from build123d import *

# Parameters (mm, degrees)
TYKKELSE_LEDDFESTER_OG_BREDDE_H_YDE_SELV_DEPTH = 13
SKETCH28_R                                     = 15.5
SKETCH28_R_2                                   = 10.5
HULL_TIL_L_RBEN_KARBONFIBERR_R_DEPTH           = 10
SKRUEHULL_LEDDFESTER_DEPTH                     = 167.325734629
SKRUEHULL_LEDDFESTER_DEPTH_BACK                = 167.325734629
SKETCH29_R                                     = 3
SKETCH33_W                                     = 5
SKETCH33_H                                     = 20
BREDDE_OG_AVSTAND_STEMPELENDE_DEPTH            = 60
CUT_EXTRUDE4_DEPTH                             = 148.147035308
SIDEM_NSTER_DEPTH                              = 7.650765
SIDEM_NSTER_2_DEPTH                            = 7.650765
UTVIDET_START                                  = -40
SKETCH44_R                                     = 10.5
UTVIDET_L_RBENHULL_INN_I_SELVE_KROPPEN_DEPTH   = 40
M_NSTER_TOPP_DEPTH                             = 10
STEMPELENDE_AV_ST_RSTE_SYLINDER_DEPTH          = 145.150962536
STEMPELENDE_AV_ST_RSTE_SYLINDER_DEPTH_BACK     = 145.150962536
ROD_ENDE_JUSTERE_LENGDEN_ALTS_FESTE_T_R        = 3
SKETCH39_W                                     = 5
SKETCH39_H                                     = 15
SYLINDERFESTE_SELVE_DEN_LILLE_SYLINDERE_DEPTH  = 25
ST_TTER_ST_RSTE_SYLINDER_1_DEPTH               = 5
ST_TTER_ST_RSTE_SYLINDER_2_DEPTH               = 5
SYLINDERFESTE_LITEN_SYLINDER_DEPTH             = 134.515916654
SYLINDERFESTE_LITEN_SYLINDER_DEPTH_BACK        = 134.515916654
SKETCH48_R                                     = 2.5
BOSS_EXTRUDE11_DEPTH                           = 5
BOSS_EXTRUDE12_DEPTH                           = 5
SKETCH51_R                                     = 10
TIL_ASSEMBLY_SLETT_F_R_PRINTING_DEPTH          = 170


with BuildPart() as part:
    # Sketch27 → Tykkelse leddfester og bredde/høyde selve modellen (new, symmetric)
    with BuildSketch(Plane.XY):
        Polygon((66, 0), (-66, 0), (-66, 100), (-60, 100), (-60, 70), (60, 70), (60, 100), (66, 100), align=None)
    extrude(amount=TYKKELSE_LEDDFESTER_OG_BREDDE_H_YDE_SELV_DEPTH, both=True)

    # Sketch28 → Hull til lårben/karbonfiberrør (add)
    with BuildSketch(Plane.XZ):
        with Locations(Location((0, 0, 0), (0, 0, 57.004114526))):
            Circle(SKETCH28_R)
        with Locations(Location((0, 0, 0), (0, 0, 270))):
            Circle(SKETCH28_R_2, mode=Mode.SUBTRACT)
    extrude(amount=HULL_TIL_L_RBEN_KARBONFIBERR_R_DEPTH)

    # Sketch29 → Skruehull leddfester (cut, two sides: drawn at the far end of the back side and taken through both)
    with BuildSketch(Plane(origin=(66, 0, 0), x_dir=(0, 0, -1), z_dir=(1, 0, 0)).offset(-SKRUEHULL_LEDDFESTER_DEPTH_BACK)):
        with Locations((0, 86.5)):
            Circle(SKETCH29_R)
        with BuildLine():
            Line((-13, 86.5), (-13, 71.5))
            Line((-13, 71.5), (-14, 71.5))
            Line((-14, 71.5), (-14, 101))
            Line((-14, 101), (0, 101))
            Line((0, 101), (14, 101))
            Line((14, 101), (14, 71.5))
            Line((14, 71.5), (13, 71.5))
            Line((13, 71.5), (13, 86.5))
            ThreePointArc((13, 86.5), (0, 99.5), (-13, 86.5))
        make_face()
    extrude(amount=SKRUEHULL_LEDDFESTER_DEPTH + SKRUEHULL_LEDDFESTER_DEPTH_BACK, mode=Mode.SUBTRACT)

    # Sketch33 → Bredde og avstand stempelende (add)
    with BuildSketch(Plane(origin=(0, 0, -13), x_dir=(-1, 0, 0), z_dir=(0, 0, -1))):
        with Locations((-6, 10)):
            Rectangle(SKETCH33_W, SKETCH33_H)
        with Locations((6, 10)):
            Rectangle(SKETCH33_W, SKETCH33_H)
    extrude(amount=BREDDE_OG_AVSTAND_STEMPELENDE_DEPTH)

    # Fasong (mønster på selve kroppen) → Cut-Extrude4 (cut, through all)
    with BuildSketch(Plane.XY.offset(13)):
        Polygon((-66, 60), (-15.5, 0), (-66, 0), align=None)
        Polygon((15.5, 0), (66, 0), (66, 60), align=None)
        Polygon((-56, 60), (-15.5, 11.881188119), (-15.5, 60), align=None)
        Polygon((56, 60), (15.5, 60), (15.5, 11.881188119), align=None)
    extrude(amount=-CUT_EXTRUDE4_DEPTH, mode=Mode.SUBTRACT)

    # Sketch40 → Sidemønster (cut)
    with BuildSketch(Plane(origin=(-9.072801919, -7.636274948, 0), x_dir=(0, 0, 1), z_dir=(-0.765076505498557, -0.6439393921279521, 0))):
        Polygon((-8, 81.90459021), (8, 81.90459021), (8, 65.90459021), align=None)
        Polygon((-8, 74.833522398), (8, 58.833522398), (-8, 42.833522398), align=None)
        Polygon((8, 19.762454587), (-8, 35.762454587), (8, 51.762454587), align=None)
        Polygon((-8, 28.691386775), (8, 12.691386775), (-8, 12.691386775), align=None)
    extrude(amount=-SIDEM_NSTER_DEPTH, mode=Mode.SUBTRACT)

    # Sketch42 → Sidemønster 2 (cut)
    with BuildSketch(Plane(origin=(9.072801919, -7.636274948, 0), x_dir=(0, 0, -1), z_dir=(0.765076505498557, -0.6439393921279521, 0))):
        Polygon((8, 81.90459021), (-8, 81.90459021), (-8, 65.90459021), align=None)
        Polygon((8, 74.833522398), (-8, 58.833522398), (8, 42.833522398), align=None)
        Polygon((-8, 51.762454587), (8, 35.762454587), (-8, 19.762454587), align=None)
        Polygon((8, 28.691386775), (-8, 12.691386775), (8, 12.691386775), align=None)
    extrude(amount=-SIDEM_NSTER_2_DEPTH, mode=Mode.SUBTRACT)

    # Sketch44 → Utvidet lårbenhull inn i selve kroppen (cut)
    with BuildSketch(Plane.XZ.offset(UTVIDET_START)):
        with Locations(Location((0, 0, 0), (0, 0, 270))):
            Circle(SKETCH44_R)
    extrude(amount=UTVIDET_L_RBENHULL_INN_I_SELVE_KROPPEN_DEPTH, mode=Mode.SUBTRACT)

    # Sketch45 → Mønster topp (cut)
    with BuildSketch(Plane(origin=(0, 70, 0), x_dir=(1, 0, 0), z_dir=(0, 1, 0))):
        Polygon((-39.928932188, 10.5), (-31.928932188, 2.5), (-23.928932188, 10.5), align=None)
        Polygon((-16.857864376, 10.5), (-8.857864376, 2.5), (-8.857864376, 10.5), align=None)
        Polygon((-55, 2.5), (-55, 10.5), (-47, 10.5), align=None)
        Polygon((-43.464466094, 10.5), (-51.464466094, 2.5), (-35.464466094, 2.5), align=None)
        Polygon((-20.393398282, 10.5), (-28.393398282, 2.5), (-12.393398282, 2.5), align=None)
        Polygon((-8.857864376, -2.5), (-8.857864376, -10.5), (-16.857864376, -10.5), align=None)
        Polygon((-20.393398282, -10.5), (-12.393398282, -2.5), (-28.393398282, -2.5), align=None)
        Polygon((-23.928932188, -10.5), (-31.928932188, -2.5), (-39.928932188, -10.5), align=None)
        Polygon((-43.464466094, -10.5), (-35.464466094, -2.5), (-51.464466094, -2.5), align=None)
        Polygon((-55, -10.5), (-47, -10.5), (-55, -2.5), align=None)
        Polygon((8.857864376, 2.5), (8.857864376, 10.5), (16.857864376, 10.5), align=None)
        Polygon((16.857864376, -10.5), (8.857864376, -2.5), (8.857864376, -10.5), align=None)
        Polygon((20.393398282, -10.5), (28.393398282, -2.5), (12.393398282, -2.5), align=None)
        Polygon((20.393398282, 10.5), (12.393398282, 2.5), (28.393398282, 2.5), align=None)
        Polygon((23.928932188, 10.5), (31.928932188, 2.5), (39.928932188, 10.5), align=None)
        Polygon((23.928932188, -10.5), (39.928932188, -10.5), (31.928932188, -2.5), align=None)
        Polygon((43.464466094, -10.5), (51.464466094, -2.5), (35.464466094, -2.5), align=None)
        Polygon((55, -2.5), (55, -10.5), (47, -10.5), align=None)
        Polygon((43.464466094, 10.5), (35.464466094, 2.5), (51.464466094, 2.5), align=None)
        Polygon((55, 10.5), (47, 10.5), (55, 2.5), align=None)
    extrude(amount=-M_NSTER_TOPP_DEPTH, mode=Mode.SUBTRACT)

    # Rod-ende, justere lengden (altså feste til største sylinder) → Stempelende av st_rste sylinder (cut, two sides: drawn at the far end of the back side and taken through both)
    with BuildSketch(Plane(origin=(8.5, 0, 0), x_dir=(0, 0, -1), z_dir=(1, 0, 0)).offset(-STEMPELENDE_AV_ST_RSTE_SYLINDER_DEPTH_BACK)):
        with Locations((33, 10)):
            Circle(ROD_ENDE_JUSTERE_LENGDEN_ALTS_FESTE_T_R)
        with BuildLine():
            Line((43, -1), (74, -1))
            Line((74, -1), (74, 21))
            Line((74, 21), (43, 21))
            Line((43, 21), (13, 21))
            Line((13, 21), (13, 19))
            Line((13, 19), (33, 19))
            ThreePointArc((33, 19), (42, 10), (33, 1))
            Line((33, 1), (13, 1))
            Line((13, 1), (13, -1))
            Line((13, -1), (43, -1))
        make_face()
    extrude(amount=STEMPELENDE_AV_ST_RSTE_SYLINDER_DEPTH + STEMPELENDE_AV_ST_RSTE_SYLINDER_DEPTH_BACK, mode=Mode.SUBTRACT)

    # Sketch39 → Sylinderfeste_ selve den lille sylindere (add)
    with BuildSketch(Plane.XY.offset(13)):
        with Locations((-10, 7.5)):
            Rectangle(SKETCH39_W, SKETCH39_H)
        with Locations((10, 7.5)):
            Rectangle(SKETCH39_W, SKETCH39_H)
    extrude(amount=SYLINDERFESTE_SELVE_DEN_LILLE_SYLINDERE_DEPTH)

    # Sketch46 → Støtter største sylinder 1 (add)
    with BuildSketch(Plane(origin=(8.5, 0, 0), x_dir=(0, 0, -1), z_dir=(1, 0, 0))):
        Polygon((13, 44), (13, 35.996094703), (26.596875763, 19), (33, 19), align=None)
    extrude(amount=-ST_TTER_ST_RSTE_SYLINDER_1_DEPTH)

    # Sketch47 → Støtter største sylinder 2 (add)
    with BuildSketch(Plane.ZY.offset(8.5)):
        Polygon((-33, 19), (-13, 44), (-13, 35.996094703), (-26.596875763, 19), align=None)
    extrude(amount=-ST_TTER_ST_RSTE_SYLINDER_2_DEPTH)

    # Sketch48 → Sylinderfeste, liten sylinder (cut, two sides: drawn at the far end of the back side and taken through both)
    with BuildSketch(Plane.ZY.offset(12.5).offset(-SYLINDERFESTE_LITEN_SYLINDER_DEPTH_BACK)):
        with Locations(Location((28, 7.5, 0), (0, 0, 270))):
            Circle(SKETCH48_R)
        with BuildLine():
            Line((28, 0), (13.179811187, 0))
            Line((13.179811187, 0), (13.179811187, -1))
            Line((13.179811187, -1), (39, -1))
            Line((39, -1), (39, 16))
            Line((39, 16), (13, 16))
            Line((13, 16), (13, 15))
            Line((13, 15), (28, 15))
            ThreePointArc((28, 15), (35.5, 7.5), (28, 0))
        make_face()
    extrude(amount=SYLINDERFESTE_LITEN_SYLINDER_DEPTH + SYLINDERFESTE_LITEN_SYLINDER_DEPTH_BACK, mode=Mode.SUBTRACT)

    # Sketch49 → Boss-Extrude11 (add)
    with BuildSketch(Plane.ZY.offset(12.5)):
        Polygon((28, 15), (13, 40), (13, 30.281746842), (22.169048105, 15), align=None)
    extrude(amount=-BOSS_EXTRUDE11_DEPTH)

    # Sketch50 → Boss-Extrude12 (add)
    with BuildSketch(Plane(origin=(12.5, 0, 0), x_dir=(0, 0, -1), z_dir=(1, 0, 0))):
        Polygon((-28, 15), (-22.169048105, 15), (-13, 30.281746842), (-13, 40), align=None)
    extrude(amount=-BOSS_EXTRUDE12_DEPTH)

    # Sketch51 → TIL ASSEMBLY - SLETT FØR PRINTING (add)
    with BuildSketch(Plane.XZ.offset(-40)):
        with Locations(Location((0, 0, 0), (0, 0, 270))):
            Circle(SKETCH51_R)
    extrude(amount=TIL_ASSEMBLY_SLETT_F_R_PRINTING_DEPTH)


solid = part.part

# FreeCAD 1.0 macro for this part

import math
import FreeCAD as App
import Part
import Sketcher
from FreeCAD import Vector
Q = App.Units.Quantity


def add_polygon(sketch, points):
    """Adds a closed chain of lines whose ends are joined by coincident constraints."""
    first, n = sketch.GeometryCount, len(points)
    for a, b in zip(points, points[1:] + points[:1]):
        sketch.addGeometry(Part.LineSegment(App.Vector(*a, 0), App.Vector(*b, 0)), False)
    for i in range(n):
        sketch.addConstraint(Sketcher.Constraint("Coincident", first + i, 2, first + (i + 1) % n, 1))

doc = App.newDocument("Part")
body = doc.addObject("PartDesign::Body", "Body")

sketch1 = doc.addObject("Sketcher::SketchObject", "Sketch")
body.addObject(sketch1)
sketch1.AttachmentSupport = (doc.XY_Plane, [""])
sketch1.MapMode = "FlatFace"
add_polygon(sketch1, [(-66, 0), (66, 0), (66, 100), (60, 100), (60, 70), (-60, 70), (-60, 100), (-66, 100)])
sketch1.addConstraint([
    Sketcher.Constraint("Horizontal", 0),
    Sketcher.Constraint("Vertical", 1),
    Sketcher.Constraint("Horizontal", 2),
    Sketcher.Constraint("Vertical", 3),
    Sketcher.Constraint("Horizontal", 4),
    Sketcher.Constraint("Vertical", 5),
    Sketcher.Constraint("Horizontal", 6),
    Sketcher.Constraint("Vertical", 7),
    Sketcher.Constraint("Symmetric", 0, 2, 7, 2, -1, 1),
    Sketcher.Constraint("Symmetric", 2, 2, 5, 2, -2),
    Sketcher.Constraint("DistanceX", 0, 1, 0, 2, Q("132 mm")),
    Sketcher.Constraint("DistanceX", 2, 2, 2, 1, Q("6 mm")),
    Sketcher.Constraint("DistanceY", 1, 1, 1, 2, Q("100 mm")),
    Sketcher.Constraint("DistanceY", 3, 2, 3, 1, Q("30 mm")),
])
pad1 = doc.addObject("PartDesign::Pad", "Pad")
body.addObject(pad1)
pad1.Profile = sketch1
pad1.Length = 26
pad1.Midplane = True

sketch2 = doc.addObject("Sketcher::SketchObject", "Sketch001")
body.addObject(sketch2)
sketch2.AttachmentSupport = (doc.XZ_Plane, [""])
sketch2.MapMode = "FlatFace"
sketch2.addGeometry([
    Part.Circle(Vector(0, 0, 0), Vector(0, 0, 1), 16),
    Part.Circle(Vector(0, 0, 0), Vector(0, 0, 1), 10),
], False)
sketch2.addConstraint([
    Sketcher.Constraint("Coincident", 0, 3, -1, 1),
    Sketcher.Constraint("Coincident", 1, 3, -1, 1),
    Sketcher.Constraint("Diameter", 0, Q("31 mm")),
    Sketcher.Constraint("Diameter", 1, Q("21 mm")),
])
pad2 = doc.addObject("PartDesign::Pad", "Pad001")
body.addObject(pad2)
pad2.Profile = sketch2
pad2.Length = 10

sketch3 = doc.addObject("Sketcher::SketchObject", "Sketch002")
body.addObject(sketch3)
sketch3.AttachmentSupport = (doc.YZ_Plane, [""])
sketch3.MapMode = "FlatFace"
sketch3.AttachmentOffset = App.Placement(Vector(0, 0, 66), App.Rotation())
sketch3.addGeometry([
    Part.Circle(Vector(86.5, 0, 0), Vector(0, 0, 1), 3),
    Part.LineSegment(Vector(71.5, 13, 0), Vector(86.5, 13, 0)),
    Part.ArcOfCircle(Part.Circle(Vector(86.5, 0, 0), Vector(0, 0, 1), 13), math.radians(-90), math.radians(90)),
    Part.LineSegment(Vector(86.5, -13, 0), Vector(71.5, -13, 0)),
    Part.LineSegment(Vector(71.5, -13, 0), Vector(71.5, -14, 0)),
    Part.LineSegment(Vector(71.5, -14, 0), Vector(101, -14, 0)),
    Part.LineSegment(Vector(101, -14, 0), Vector(101, 14, 0)),
    Part.LineSegment(Vector(101, 14, 0), Vector(71.5, 14, 0)),
    Part.LineSegment(Vector(71.5, 14, 0), Vector(71.5, 13, 0)),
], False)
sketch3.addConstraint([
    Sketcher.Constraint("Tangent", 1, 2, 2, 2),
    Sketcher.Constraint("Tangent", 2, 1, 3, 1),
    Sketcher.Constraint("Coincident", 3, 2, 4, 1),
    Sketcher.Constraint("Coincident", 4, 2, 5, 1),
    Sketcher.Constraint("Coincident", 5, 2, 6, 1),
    Sketcher.Constraint("Coincident", 6, 2, 7, 1),
    Sketcher.Constraint("Coincident", 7, 2, 8, 1),
    Sketcher.Constraint("Coincident", 8, 2, 1, 1),
    Sketcher.Constraint("Horizontal", 1),
    Sketcher.Constraint("Horizontal", 3),
    Sketcher.Constraint("Vertical", 4),
    Sketcher.Constraint("Horizontal", 5),
    Sketcher.Constraint("Vertical", 6),
    Sketcher.Constraint("Horizontal", 7),
    Sketcher.Constraint("Vertical", 8),
    Sketcher.Constraint("Coincident", 2, 3, 0, 3),
    Sketcher.Constraint("Symmetric", 4, 2, 7, 2, -1),
    Sketcher.Constraint("PointOnObject", 0, 3, -1),
    Sketcher.Constraint("Diameter", 0, Q("6 mm")),
    Sketcher.Constraint("Radius", 2, Q("13 mm")),
    Sketcher.Constraint("DistanceX", 1, 1, 1, 2, Q("15 mm")),
    Sketcher.Constraint("DistanceY", 4, 2, 4, 1, Q("1 mm")),
    Sketcher.Constraint("DistanceX", 5, 1, 5, 2, Q("29.5 mm")),
    Sketcher.Constraint("DistanceX", -1, 1, 5, 2, Q("101 mm")),
])
pocket1 = doc.addObject("PartDesign::Pocket", "Pocket")
body.addObject(pocket1)
pocket1.Profile = sketch3
pocket1.Type = "ThroughAll"
pocket1.Midplane = True

sketch4 = doc.addObject("Sketcher::SketchObject", "Sketch003")
body.addObject(sketch4)
sketch4.AttachmentSupport = (doc.XY_Plane, [""])
sketch4.MapMode = "FlatFace"
sketch4.AttachmentOffset = App.Placement(Vector(0, 0, -13), App.Rotation())
add_polygon(sketch4, [(8, 20), (8, 0), (4, 0), (4, 20)])
add_polygon(sketch4, [(-4, 20), (-4, 0), (-8, 0), (-8, 20)])
sketch4.addConstraint([
    Sketcher.Constraint("Vertical", 0),
    Sketcher.Constraint("Horizontal", 1),
    Sketcher.Constraint("Vertical", 2),
    Sketcher.Constraint("Horizontal", 3),
    Sketcher.Constraint("Vertical", 4),
    Sketcher.Constraint("Horizontal", 5),
    Sketcher.Constraint("Vertical", 6),
    Sketcher.Constraint("Horizontal", 7),
    Sketcher.Constraint("Symmetric", 1, 2, 4, 2, -1, 1),
    Sketcher.Constraint("Symmetric", 0, 2, 5, 2, -2),
    Sketcher.Constraint("Horizontal", 3, 2, 6, 2),
    Sketcher.Constraint("DistanceX", 1, 2, 1, 1, Q("5 mm")),
    Sketcher.Constraint("DistanceY", 0, 2, 0, 1, Q("20 mm")),
    Sketcher.Constraint("DistanceX", 4, 2, 1, 2, Q("7 mm")),
])
pad3 = doc.addObject("PartDesign::Pad", "Pad002")
body.addObject(pad3)
pad3.Profile = sketch4
pad3.Length = 60
pad3.Reversed = True

sketch5 = doc.addObject("Sketcher::SketchObject", "Sketch004")
body.addObject(sketch5)
sketch5.AttachmentSupport = (doc.XY_Plane, [""])
sketch5.MapMode = "FlatFace"
sketch5.AttachmentOffset = App.Placement(Vector(0, 0, 13), App.Rotation())
add_polygon(sketch5, [(-16, 0), (-66, 60), (-66, 0)])
add_polygon(sketch5, [(16, 0), (66, 0), (66, 60)])
add_polygon(sketch5, [(-56, 60), (-16, 12), (-16, 60)])
add_polygon(sketch5, [(56, 60), (16, 60), (16, 12)])
sketch5.addConstraint([
    Sketcher.Constraint("Vertical", 1),
    Sketcher.Constraint("Horizontal", 2),
    Sketcher.Constraint("Horizontal", 3),
    Sketcher.Constraint("Vertical", 4),
    Sketcher.Constraint("Vertical", 7),
    Sketcher.Constraint("Horizontal", 8),
    Sketcher.Constraint("Horizontal", 9),
    Sketcher.Constraint("Vertical", 10),
    Sketcher.Constraint("Symmetric", 1, 2, 3, 2, -1, 1),
    Sketcher.Constraint("Symmetric", 2, 2, 5, 2, -2),
    Sketcher.Constraint("Symmetric", 7, 2, 9, 2, -2),
    Sketcher.Constraint("Parallel", 0, 6),
    Sketcher.Constraint("Parallel", 5, 11),
    Sketcher.Constraint("Horizontal", 0, 2, 4, 2),
    Sketcher.Constraint("Horizontal", 4, 2, 7, 2),
    Sketcher.Constraint("Horizontal", 6, 2, 10, 2),
    Sketcher.Constraint("Vertical", 2, 2, 6, 2),
    Sketcher.Constraint("DistanceY", 1, 2, 1, 1, Q("60 mm")),
    Sketcher.Constraint("DistanceX", 2, 1, 2, 2, Q("50.5 mm")),
    Sketcher.Constraint("DistanceX", 8, 2, 8, 1, Q("40.5 mm")),
    Sketcher.Constraint("DistanceX", 0, 2, -1, 1, Q("66 mm")),
])
pocket2 = doc.addObject("PartDesign::Pocket", "Pocket001")
body.addObject(pocket2)
pocket2.Profile = sketch5
pocket2.Type = "ThroughAll"

sketch6 = doc.addObject("Sketcher::SketchObject", "Sketch005")
body.addObject(sketch6)
sketch6.Placement = App.Placement(Vector(-9.072802, -7.636275, 0), App.Rotation(Vector(0, 0, 1), Vector(-0.643939392, 0.765076505, 0), Vector(-0.765076505, -0.643939392, 0), "ZXY"))
add_polygon(sketch6, [(8, 82), (-8, 82), (8, 66)])
add_polygon(sketch6, [(8, 59), (-8, 75), (-8, 43)])
add_polygon(sketch6, [(-8, 36), (8, 20), (8, 52)])
add_polygon(sketch6, [(8, 13), (-8, 29), (-8, 13)])
sketch6.addConstraint([
    Sketcher.Constraint("Horizontal", 0),
    Sketcher.Constraint("Vertical", 2),
    Sketcher.Constraint("Vertical", 4),
    Sketcher.Constraint("Vertical", 7),
    Sketcher.Constraint("Vertical", 10),
    Sketcher.Constraint("Horizontal", 11),
    Sketcher.Constraint("Parallel", 1, 3),
    Sketcher.Constraint("Perpendicular", 3, 5),
    Sketcher.Constraint("Perpendicular", 5, 6),
    Sketcher.Constraint("Perpendicular", 6, 8),
    Sketcher.Constraint("Perpendicular", 8, 9),
    Sketcher.Constraint("Vertical", 0, 2, 3, 2),
    Sketcher.Constraint("Vertical", 2, 2, 5, 2),
    Sketcher.Constraint("Vertical", 5, 2, 6, 2),
    Sketcher.Constraint("Vertical", 4, 2, 8, 2),
    Sketcher.Constraint("Vertical", 8, 2, 9, 2),
    Sketcher.Constraint("Vertical", 7, 2, 11, 2),
    Sketcher.Constraint("Equal", 11, 2),
    Sketcher.Constraint("DistanceX", 0, 2, 0, 1, Q("16 mm")),
    Sketcher.Constraint("DistanceX", 0, 2, -1, 1, Q("8 mm")),
    Sketcher.Constraint("DistanceY", -1, 1, 0, 2, Q("81.90459 mm")),
    Sketcher.Constraint("DistanceY", -1, 1, 3, 2, Q("74.833522 mm")),
    Sketcher.Constraint("DistanceY", -1, 1, 6, 2, Q("19.762455 mm")),
    Sketcher.Constraint("DistanceY", -1, 1, 9, 2, Q("28.691387 mm")),
])
pocket3 = doc.addObject("PartDesign::Pocket", "Pocket002")
body.addObject(pocket3)
pocket3.Profile = sketch6
pocket3.Length = 7.650765

sketch7 = doc.addObject("Sketcher::SketchObject", "Sketch006")
body.addObject(sketch7)
sketch7.Placement = App.Placement(Vector(9.072802, -7.636275, 0), App.Rotation(Vector(0, 0, -1), Vector(0.643939392, 0.765076505, 0), Vector(0.765076505, -0.643939392, 0), "ZXY"))
add_polygon(sketch7, [(8, 82), (-8, 82), (-8, 66)])
add_polygon(sketch7, [(8, 75), (-8, 59), (8, 43)])
add_polygon(sketch7, [(8, 36), (-8, 52), (-8, 20)])
add_polygon(sketch7, [(8, 29), (-8, 13), (8, 13)])
sketch7.addConstraint([
    Sketcher.Constraint("Horizontal", 0),
    Sketcher.Constraint("Vertical", 1),
    Sketcher.Constraint("Vertical", 5),
    Sketcher.Constraint("Vertical", 7),
    Sketcher.Constraint("Horizontal", 10),
    Sketcher.Constraint("Vertical", 11),
    Sketcher.Constraint("Parallel", 2, 3),
    Sketcher.Constraint("Perpendicular", 3, 4),
    Sketcher.Constraint("Parallel", 4, 6),
    Sketcher.Constraint("Perpendicular", 6, 8),
    Sketcher.Constraint("Parallel", 8, 9),
    Sketcher.Constraint("Vertical", 1, 2, 3, 2),
    Sketcher.Constraint("Vertical", 2, 2, 4, 2),
    Sketcher.Constraint("Vertical", 3, 2, 6, 2),
    Sketcher.Constraint("Vertical", 5, 2, 8, 2),
    Sketcher.Constraint("Vertical", 7, 2, 9, 2),
    Sketcher.Constraint("Vertical", 8, 2, 10, 2),
    Sketcher.Constraint("Equal", 10, 1),
    Sketcher.Constraint("DistanceX", 0, 2, 0, 1, Q("16 mm")),
    Sketcher.Constraint("DistanceX", 0, 2, -1, 1, Q("8 mm")),
    Sketcher.Constraint("DistanceY", -1, 1, 0, 2, Q("81.90459 mm")),
    Sketcher.Constraint("DistanceY", -1, 1, 3, 2, Q("58.833522 mm")),
    Sketcher.Constraint("DistanceY", -1, 1, 6, 2, Q("51.762455 mm")),
    Sketcher.Constraint("DistanceY", -1, 1, 9, 2, Q("12.691387 mm")),
])
pocket4 = doc.addObject("PartDesign::Pocket", "Pocket003")
body.addObject(pocket4)
pocket4.Profile = sketch7
pocket4.Length = 7.650765

sketch8 = doc.addObject("Sketcher::SketchObject", "Sketch007")
body.addObject(sketch8)
sketch8.AttachmentSupport = (doc.XZ_Plane, [""])
sketch8.MapMode = "FlatFace"
sketch8.AttachmentOffset = App.Placement(Vector(0, 0, -40), App.Rotation())
sketch8.addGeometry(Part.Circle(Vector(0, 0, 0), Vector(0, 0, 1), 10), False)
sketch8.addConstraint([
    Sketcher.Constraint("Coincident", 0, 3, -1, 1),
    Sketcher.Constraint("Diameter", 0, Q("21 mm")),
])
pocket5 = doc.addObject("PartDesign::Pocket", "Pocket004")
body.addObject(pocket5)
pocket5.Profile = sketch8
pocket5.Length = 40
pocket5.Reversed = True

sketch9 = doc.addObject("Sketcher::SketchObject", "Sketch008")
body.addObject(sketch9)
sketch9.AttachmentSupport = (doc.XZ_Plane, [""])
sketch9.MapMode = "FlatFace"
sketch9.AttachmentOffset = App.Placement(Vector(0, 0, -70), App.Rotation())
add_polygon(sketch9, [(-40, -10), (-32, -2), (-24, -10)])
add_polygon(sketch9, [(-17, -10), (-9, -2), (-9, -10)])
add_polygon(sketch9, [(-55, -10), (-55, -2), (-47, -10)])
add_polygon(sketch9, [(-43, -10), (-51, -2), (-35, -2)])
add_polygon(sketch9, [(-20, -10), (-28, -2), (-12, -2)])
add_polygon(sketch9, [(-9, 10), (-9, 2), (-17, 10)])
add_polygon(sketch9, [(-20, 10), (-12, 2), (-28, 2)])
add_polygon(sketch9, [(-24, 10), (-32, 2), (-40, 10)])
add_polygon(sketch9, [(-43, 10), (-35, 2), (-51, 2)])
add_polygon(sketch9, [(-55, 10), (-47, 10), (-55, 2)])
add_polygon(sketch9, [(9, -10), (9, -2), (17, -10)])
add_polygon(sketch9, [(17, 10), (9, 2), (9, 10)])
add_polygon(sketch9, [(20, 10), (28, 2), (12, 2)])
add_polygon(sketch9, [(20, -10), (12, -2), (28, -2)])
add_polygon(sketch9, [(24, -10), (32, -2), (40, -10)])
add_polygon(sketch9, [(24, 10), (40, 10), (32, 2)])
add_polygon(sketch9, [(43, 10), (51, 2), (35, 2)])
add_polygon(sketch9, [(55, 10), (55, 2), (47, 10)])
add_polygon(sketch9, [(43, -10), (35, -2), (51, -2)])
add_polygon(sketch9, [(55, -10), (47, -10), (55, -2)])
sketch9.addConstraint([
    Sketcher.Constraint("Horizontal", 2),
    Sketcher.Constraint("Vertical", 4),
    Sketcher.Constraint("Horizontal", 5),
    Sketcher.Constraint("Vertical", 6),
    Sketcher.Constraint("Horizontal", 8),
    Sketcher.Constraint("Horizontal", 10),
    Sketcher.Constraint("Horizontal", 13),
    Sketcher.Constraint("Vertical", 15),
    Sketcher.Constraint("Horizontal", 17),
    Sketcher.Constraint("Horizontal", 19),
    Sketcher.Constraint("Horizontal", 23),
    Sketcher.Constraint("Horizontal", 25),
    Sketcher.Constraint("Horizontal", 27),
    Sketcher.Constraint("Vertical", 29),
    Sketcher.Constraint("Vertical", 30),
    Sketcher.Constraint("Horizontal", 32),
    Sketcher.Constraint("Vertical", 34),
    Sketcher.Constraint("Horizontal", 35),
    Sketcher.Constraint("Horizontal", 37),
    Sketcher.Constraint("Horizontal", 40),
    Sketcher.Constraint("Horizontal", 44),
    Sketcher.Constraint("Horizontal", 45),
    Sketcher.Constraint("Horizontal", 49),
    Sketcher.Constraint("Vertical", 51),
    Sketcher.Constraint("Horizontal", 53),
    Sketcher.Constraint("Horizontal", 55),
    Sketcher.Constraint("Horizontal", 57),
    Sketcher.Constraint("Vertical", 59),
    Sketcher.Constraint("Symmetric", 15, 2, 30, 2, -1, 1),
    Sketcher.Constraint("Symmetric", 16, 2, 31, 2, -1, 1),
    Sketcher.Constraint("Symmetric", 3, 2, 33, 2, -1, 1),
    Sketcher.Constraint("Symmetric", 5, 2, 35, 2, -1, 1),
    Sketcher.Constraint("Symmetric", 12, 2, 36, 2, -1, 1),
    Sketcher.Constraint("Symmetric", 14, 2, 38, 2, -1, 1),
    Sketcher.Constraint("Symmetric", 18, 2, 39, 2, -1, 1),
    Sketcher.Constraint("Symmetric", 20, 2, 41, 2, -1, 1),
    Sketcher.Constraint("Symmetric", 21, 2, 42, 2, -1, 1),
    Sketcher.Constraint("Symmetric", 22, 2, 43, 2, -1, 1),
    Sketcher.Constraint("Symmetric", 2, 2, 45, 2, -1, 1),
    Sketcher.Constraint("Symmetric", 0, 2, 46, 2, -1, 1),
    Sketcher.Constraint("Symmetric", 9, 2, 48, 2, -1, 1),
    Sketcher.Constraint("Symmetric", 11, 2, 50, 2, -1, 1),
    Sketcher.Constraint("Symmetric", 6, 2, 51, 2, -1, 1),
    Sketcher.Constraint("Symmetric", 7, 2, 52, 2, -1, 1),
    Sketcher.Constraint("Symmetric", 24, 2, 54, 2, -1, 1),
    Sketcher.Constraint("Symmetric", 26, 2, 56, 2, -1, 1),
    Sketcher.Constraint("Symmetric", 27, 2, 57, 2, -1, 1),
    Sketcher.Constraint("Symmetric", 28, 2, 58, 2, -1, 1),
    Sketcher.Constraint("Symmetric", 3, 2, 30, 2, -2),
    Sketcher.Constraint("Symmetric", 5, 2, 31, 2, -2),
    Sketcher.Constraint("Symmetric", 19, 2, 36, 2, -2),
    Sketcher.Constraint("Symmetric", 20, 2, 38, 2, -2),
    Sketcher.Constraint("Symmetric", 0, 2, 42, 2, -2),
    Sketcher.Constraint("Symmetric", 2, 2, 43, 2, -2),
    Sketcher.Constraint("Symmetric", 25, 2, 48, 2, -2),
    Sketcher.Constraint("Symmetric", 26, 2, 50, 2, -2),
    Sketcher.Constraint("Symmetric", 28, 2, 51, 2, -2),
    Sketcher.Constraint("Symmetric", 27, 2, 52, 2, -2),
    Sketcher.Constraint("Perpendicular", 0, 1),
    Sketcher.Constraint("Perpendicular", 1, 3),
    Sketcher.Constraint("Perpendicular", 3, 7),
    Sketcher.Constraint("Parallel", 7, 9),
    Sketcher.Constraint("Perpendicular", 9, 11),
    Sketcher.Constraint("Perpendicular", 11, 12),
    Sketcher.Constraint("Perpendicular", 12, 14),
    Sketcher.Constraint("Perpendicular", 14, 16),
    Sketcher.Constraint("Parallel", 16, 18),
    Sketcher.Constraint("Parallel", 20, 21),
    Sketcher.Constraint("Parallel", 22, 24),
    Sketcher.Constraint("Perpendicular", 36, 38),
    Sketcher.Constraint("Perpendicular", 39, 41),
    Sketcher.Constraint("Parallel", 41, 42),
    Sketcher.Constraint("Perpendicular", 46, 47),
    Sketcher.Constraint("Perpendicular", 48, 50),
    Sketcher.Constraint("Perpendicular", 54, 56),
    Sketcher.Constraint("Horizontal", 0, 2, 3, 2),
    Sketcher.Constraint("Horizontal", 2, 2, 4, 2),
    Sketcher.Constraint("Horizontal", 3, 2, 6, 2),
    Sketcher.Constraint("Horizontal", 5, 2, 7, 2),
    Sketcher.Constraint("Horizontal", 6, 2, 9, 2),
    Sketcher.Constraint("Horizontal", 8, 2, 11, 2),
    Sketcher.Constraint("Horizontal", 10, 2, 12, 2),
    Sketcher.Constraint("Horizontal", 11, 2, 14, 2),
    Sketcher.Constraint("DistanceX", 2, 2, 2, 1, Q("16 mm")),
    Sketcher.Constraint("DistanceX", 6, 2, -1, 1, Q("55 mm")),
    Sketcher.Constraint("DistanceY", 3, 2, 15, 2, Q("5 mm")),
    Sketcher.Constraint("DistanceX", 12, 2, -1, 1, Q("28.393398 mm")),
    Sketcher.Constraint("DistanceX", 3, 2, 30, 2, Q("17.715729 mm")),
    Sketcher.Constraint("DistanceX", 0, 2, -1, 1, Q("31.928932 mm")),
    Sketcher.Constraint("DistanceX", 9, 2, -1, 1, Q("51.464466 mm")),
])
pocket6 = doc.addObject("PartDesign::Pocket", "Pocket005")
body.addObject(pocket6)
pocket6.Profile = sketch9
pocket6.Length = 10
pocket6.Reversed = True

sketch10 = doc.addObject("Sketcher::SketchObject", "Sketch009")
body.addObject(sketch10)
sketch10.AttachmentSupport = (doc.YZ_Plane, [""])
sketch10.MapMode = "FlatFace"
sketch10.AttachmentOffset = App.Placement(Vector(0, 0, 8.5), App.Rotation())
sketch10.addGeometry([
    Part.Circle(Vector(10, -33, 0), Vector(0, 0, 1), 3),
    Part.LineSegment(Vector(-1, -74, 0), Vector(21, -74, 0)),
    Part.LineSegment(Vector(21, -74, 0), Vector(21, -13, 0)),
    Part.LineSegment(Vector(21, -13, 0), Vector(19, -13, 0)),
    Part.LineSegment(Vector(19, -13, 0), Vector(19, -33, 0)),
    Part.ArcOfCircle(Part.Circle(Vector(10, -33, 0), Vector(0, 0, 1), 9), math.radians(180), math.radians(360)),
    Part.LineSegment(Vector(1, -33, 0), Vector(1, -13, 0)),
    Part.LineSegment(Vector(1, -13, 0), Vector(-1, -13, 0)),
    Part.LineSegment(Vector(-1, -13, 0), Vector(-1, -74, 0)),
], False)
sketch10.addConstraint([
    Sketcher.Constraint("Coincident", 1, 2, 2, 1),
    Sketcher.Constraint("Coincident", 2, 2, 3, 1),
    Sketcher.Constraint("Coincident", 3, 2, 4, 1),
    Sketcher.Constraint("Tangent", 4, 2, 5, 2),
    Sketcher.Constraint("Tangent", 5, 1, 6, 1),
    Sketcher.Constraint("Coincident", 6, 2, 7, 1),
    Sketcher.Constraint("Coincident", 7, 2, 8, 1),
    Sketcher.Constraint("Coincident", 8, 2, 1, 1),
    Sketcher.Constraint("Horizontal", 1),
    Sketcher.Constraint("Vertical", 2),
    Sketcher.Constraint("Horizontal", 3),
    Sketcher.Constraint("Vertical", 4),
    Sketcher.Constraint("Vertical", 6),
    Sketcher.Constraint("Horizontal", 7),
    Sketcher.Constraint("Vertical", 8),
    Sketcher.Constraint("Coincident", 5, 3, 0, 3),
    Sketcher.Constraint("Horizontal", 3, 2, 6, 2),
    Sketcher.Constraint("Equal", 3, 7),
    Sketcher.Constraint("Diameter", 0, Q("6 mm")),
    Sketcher.Constraint("Radius", 5, Q("9 mm")),
    Sketcher.Constraint("DistanceX", 1, 1, 1, 2, Q("22 mm")),
    Sketcher.Constraint("DistanceY", 2, 1, 2, 2, Q("61 mm")),
    Sketcher.Constraint("DistanceY", 4, 2, 4, 1, Q("20 mm")),
    Sketcher.Constraint("DistanceX", -1, 1, 0, 3, Q("10 mm")),
    Sketcher.Constraint("DistanceY", 0, 3, -1, 1, Q("33 mm")),
])
pocket7 = doc.addObject("PartDesign::Pocket", "Pocket006")
body.addObject(pocket7)
pocket7.Profile = sketch10
pocket7.Type = "ThroughAll"
pocket7.Midplane = True

sketch11 = doc.addObject("Sketcher::SketchObject", "Sketch010")
body.addObject(sketch11)
sketch11.AttachmentSupport = (doc.XY_Plane, [""])
sketch11.MapMode = "FlatFace"
sketch11.AttachmentOffset = App.Placement(Vector(0, 0, 13), App.Rotation())
add_polygon(sketch11, [(-12, 15), (-12, 0), (-8, 0), (-8, 15)])
add_polygon(sketch11, [(8, 15), (8, 0), (12, 0), (12, 15)])
sketch11.addConstraint([
    Sketcher.Constraint("Vertical", 0),
    Sketcher.Constraint("Horizontal", 1),
    Sketcher.Constraint("Vertical", 2),
    Sketcher.Constraint("Horizontal", 3),
    Sketcher.Constraint("Vertical", 4),
    Sketcher.Constraint("Horizontal", 5),
    Sketcher.Constraint("Vertical", 6),
    Sketcher.Constraint("Horizontal", 7),
    Sketcher.Constraint("Symmetric", 1, 2, 4, 2, -1, 1),
    Sketcher.Constraint("Symmetric", 0, 2, 5, 2, -2),
    Sketcher.Constraint("Horizontal", 3, 2, 6, 2),
    Sketcher.Constraint("DistanceX", 1, 1, 1, 2, Q("5 mm")),
    Sketcher.Constraint("DistanceY", 0, 2, 0, 1, Q("15 mm")),
    Sketcher.Constraint("DistanceX", 1, 2, 4, 2, Q("15 mm")),
])
pad4 = doc.addObject("PartDesign::Pad", "Pad003")
body.addObject(pad4)
pad4.Profile = sketch11
pad4.Length = 25

sketch12 = doc.addObject("Sketcher::SketchObject", "Sketch011")
body.addObject(sketch12)
sketch12.AttachmentSupport = (doc.YZ_Plane, [""])
sketch12.MapMode = "FlatFace"
sketch12.AttachmentOffset = App.Placement(Vector(0, 0, 8.5), App.Rotation())
add_polygon(sketch12, [(44, -13), (36, -13), (19, -27), (19, -33)])
sketch12.addConstraint([
    Sketcher.Constraint("Horizontal", 0),
    Sketcher.Constraint("Vertical", 2),
    Sketcher.Constraint("Parallel", 1, 3),
    Sketcher.Constraint("DistanceY", 0, 2, -1, 1, Q("13 mm")),
    Sketcher.Constraint("DistanceX", -1, 1, 1, 2, Q("19 mm")),
    Sketcher.Constraint("DistanceY", 2, 2, -1, 1, Q("33 mm")),
    Sketcher.Constraint("DistanceX", -1, 1, 3, 2, Q("44 mm")),
    Sketcher.Constraint("Distance", 1, Q("21.765621 mm")),
])
pad5 = doc.addObject("PartDesign::Pad", "Pad004")
body.addObject(pad5)
pad5.Profile = sketch12
pad5.Length = 5
pad5.Reversed = True

sketch13 = doc.addObject("Sketcher::SketchObject", "Sketch012")
body.addObject(sketch13)
sketch13.AttachmentSupport = (doc.YZ_Plane, [""])
sketch13.MapMode = "FlatFace"
sketch13.AttachmentOffset = App.Placement(Vector(0, 0, -8.5), App.Rotation())
add_polygon(sketch13, [(44, -13), (19, -33), (19, -27), (36, -13)])
sketch13.addConstraint([
    Sketcher.Constraint("Vertical", 1),
    Sketcher.Constraint("Horizontal", 3),
    Sketcher.Constraint("Parallel", 0, 2),
    Sketcher.Constraint("DistanceX", -1, 1, 0, 2, Q("19 mm")),
    Sketcher.Constraint("DistanceY", 0, 2, -1, 1, Q("33 mm")),
    Sketcher.Constraint("DistanceY", 2, 2, -1, 1, Q("13 mm")),
    Sketcher.Constraint("DistanceX", -1, 1, 3, 2, Q("44 mm")),
    Sketcher.Constraint("Distance", 2, Q("21.765621 mm")),
])
pad6 = doc.addObject("PartDesign::Pad", "Pad005")
body.addObject(pad6)
pad6.Profile = sketch13
pad6.Length = 5

sketch14 = doc.addObject("Sketcher::SketchObject", "Sketch013")
body.addObject(sketch14)
sketch14.AttachmentSupport = (doc.YZ_Plane, [""])
sketch14.MapMode = "FlatFace"
sketch14.AttachmentOffset = App.Placement(Vector(0, 0, -12.5), App.Rotation())
sketch14.addGeometry([
    Part.Circle(Vector(7.5, 28, 0), Vector(0, 0, 1), 2.5),
    Part.LineSegment(Vector(0, 28, 0), Vector(0, 13.2, 0)),
    Part.LineSegment(Vector(0, 13.2, 0), Vector(-1, 13.2, 0)),
    Part.LineSegment(Vector(-1, 13.2, 0), Vector(-1, 39, 0)),
    Part.LineSegment(Vector(-1, 39, 0), Vector(16, 39, 0)),
    Part.LineSegment(Vector(16, 39, 0), Vector(16, 13, 0)),
    Part.LineSegment(Vector(16, 13, 0), Vector(15, 13, 0)),
    Part.LineSegment(Vector(15, 13, 0), Vector(15, 28, 0)),
    Part.ArcOfCircle(Part.Circle(Vector(7.5, 28, 0), Vector(0, 0, 1), 7.5), math.radians(0), math.radians(180)),
], False)
sketch14.addConstraint([
    Sketcher.Constraint("Coincident", 1, 2, 2, 1),
    Sketcher.Constraint("Coincident", 2, 2, 3, 1),
    Sketcher.Constraint("Coincident", 3, 2, 4, 1),
    Sketcher.Constraint("Coincident", 4, 2, 5, 1),
    Sketcher.Constraint("Coincident", 5, 2, 6, 1),
    Sketcher.Constraint("Coincident", 6, 2, 7, 1),
    Sketcher.Constraint("Tangent", 7, 2, 8, 1),
    Sketcher.Constraint("Tangent", 8, 2, 1, 1),
    Sketcher.Constraint("Vertical", 1),
    Sketcher.Constraint("Horizontal", 2),
    Sketcher.Constraint("Vertical", 3),
    Sketcher.Constraint("Horizontal", 4),
    Sketcher.Constraint("Vertical", 5),
    Sketcher.Constraint("Horizontal", 6),
    Sketcher.Constraint("Vertical", 7),
    Sketcher.Constraint("Coincident", 8, 3, 0, 3),
    Sketcher.Constraint("PointOnObject", 1, 2, -2),
    Sketcher.Constraint("Equal", 2, 6),
    Sketcher.Constraint("Diameter", 0, Q("5 mm")),
    Sketcher.Constraint("Radius", 8, Q("7.5 mm")),
    Sketcher.Constraint("DistanceX", 2, 2, 2, 1, Q("1 mm")),
    Sketcher.Constraint("DistanceY", 5, 2, 5, 1, Q("26 mm")),
    Sketcher.Constraint("DistanceY", 7, 1, 7, 2, Q("15 mm")),
    Sketcher.Constraint("DistanceY", -1, 1, 0, 3, Q("28 mm")),
    Sketcher.Constraint("DistanceY", 1, 2, 1, 1, Q("14.820189 mm")),
])
pocket8 = doc.addObject("PartDesign::Pocket", "Pocket007")
body.addObject(pocket8)
pocket8.Profile = sketch14
pocket8.Type = "ThroughAll"
pocket8.Midplane = True

sketch15 = doc.addObject("Sketcher::SketchObject", "Sketch014")
body.addObject(sketch15)
sketch15.AttachmentSupport = (doc.YZ_Plane, [""])
sketch15.MapMode = "FlatFace"
sketch15.AttachmentOffset = App.Placement(Vector(0, 0, -12.5), App.Rotation())
add_polygon(sketch15, [(15, 28), (40, 13), (30, 13), (15, 22)])
sketch15.addConstraint([
    Sketcher.Constraint("Horizontal", 1),
    Sketcher.Constraint("Vertical", 3),
    Sketcher.Constraint("Parallel", 0, 2),
    Sketcher.Constraint("DistanceX", -1, 1, 0, 2, Q("40 mm")),
    Sketcher.Constraint("DistanceY", -1, 1, 0, 2, Q("13 mm")),
    Sketcher.Constraint("DistanceX", -1, 1, 2, 2, Q("15 mm")),
    Sketcher.Constraint("DistanceY", -1, 1, 3, 2, Q("28 mm")),
    Sketcher.Constraint("DistanceY", 3, 1, 3, 2, Q("5.830952 mm")),
])
pad7 = doc.addObject("PartDesign::Pad", "Pad006")
body.addObject(pad7)
pad7.Profile = sketch15
pad7.Length = 5

sketch16 = doc.addObject("Sketcher::SketchObject", "Sketch015")
body.addObject(sketch16)
sketch16.AttachmentSupport = (doc.YZ_Plane, [""])
sketch16.MapMode = "FlatFace"
sketch16.AttachmentOffset = App.Placement(Vector(0, 0, 12.5), App.Rotation())
add_polygon(sketch16, [(15, 28), (15, 22), (30, 13), (40, 13)])
sketch16.addConstraint([
    Sketcher.Constraint("Vertical", 0),
    Sketcher.Constraint("Horizontal", 2),
    Sketcher.Constraint("Parallel", 1, 3),
    Sketcher.Constraint("DistanceX", -1, 1, 0, 2, Q("15 mm")),
    Sketcher.Constraint("DistanceY", -1, 1, 1, 2, Q("13 mm")),
    Sketcher.Constraint("DistanceX", -1, 1, 2, 2, Q("40 mm")),
    Sketcher.Constraint("DistanceY", -1, 1, 3, 2, Q("28 mm")),
    Sketcher.Constraint("DistanceY", 0, 2, 0, 1, Q("5.830952 mm")),
])
pad8 = doc.addObject("PartDesign::Pad", "Pad007")
body.addObject(pad8)
pad8.Profile = sketch16
pad8.Length = 5
pad8.Reversed = True

sketch17 = doc.addObject("Sketcher::SketchObject", "Sketch016")
body.addObject(sketch17)
sketch17.AttachmentSupport = (doc.XZ_Plane, [""])
sketch17.MapMode = "FlatFace"
sketch17.AttachmentOffset = App.Placement(Vector(0, 0, -40), App.Rotation())
sketch17.addGeometry(Part.Circle(Vector(0, 0, 0), Vector(0, 0, 1), 10), False)
sketch17.addConstraint([
    Sketcher.Constraint("Coincident", 0, 3, -1, 1),
    Sketcher.Constraint("Diameter", 0, Q("20 mm")),
])
pad9 = doc.addObject("PartDesign::Pad", "Pad008")
body.addObject(pad9)
pad9.Profile = sketch17
pad9.Length = 170

doc.recompute()
